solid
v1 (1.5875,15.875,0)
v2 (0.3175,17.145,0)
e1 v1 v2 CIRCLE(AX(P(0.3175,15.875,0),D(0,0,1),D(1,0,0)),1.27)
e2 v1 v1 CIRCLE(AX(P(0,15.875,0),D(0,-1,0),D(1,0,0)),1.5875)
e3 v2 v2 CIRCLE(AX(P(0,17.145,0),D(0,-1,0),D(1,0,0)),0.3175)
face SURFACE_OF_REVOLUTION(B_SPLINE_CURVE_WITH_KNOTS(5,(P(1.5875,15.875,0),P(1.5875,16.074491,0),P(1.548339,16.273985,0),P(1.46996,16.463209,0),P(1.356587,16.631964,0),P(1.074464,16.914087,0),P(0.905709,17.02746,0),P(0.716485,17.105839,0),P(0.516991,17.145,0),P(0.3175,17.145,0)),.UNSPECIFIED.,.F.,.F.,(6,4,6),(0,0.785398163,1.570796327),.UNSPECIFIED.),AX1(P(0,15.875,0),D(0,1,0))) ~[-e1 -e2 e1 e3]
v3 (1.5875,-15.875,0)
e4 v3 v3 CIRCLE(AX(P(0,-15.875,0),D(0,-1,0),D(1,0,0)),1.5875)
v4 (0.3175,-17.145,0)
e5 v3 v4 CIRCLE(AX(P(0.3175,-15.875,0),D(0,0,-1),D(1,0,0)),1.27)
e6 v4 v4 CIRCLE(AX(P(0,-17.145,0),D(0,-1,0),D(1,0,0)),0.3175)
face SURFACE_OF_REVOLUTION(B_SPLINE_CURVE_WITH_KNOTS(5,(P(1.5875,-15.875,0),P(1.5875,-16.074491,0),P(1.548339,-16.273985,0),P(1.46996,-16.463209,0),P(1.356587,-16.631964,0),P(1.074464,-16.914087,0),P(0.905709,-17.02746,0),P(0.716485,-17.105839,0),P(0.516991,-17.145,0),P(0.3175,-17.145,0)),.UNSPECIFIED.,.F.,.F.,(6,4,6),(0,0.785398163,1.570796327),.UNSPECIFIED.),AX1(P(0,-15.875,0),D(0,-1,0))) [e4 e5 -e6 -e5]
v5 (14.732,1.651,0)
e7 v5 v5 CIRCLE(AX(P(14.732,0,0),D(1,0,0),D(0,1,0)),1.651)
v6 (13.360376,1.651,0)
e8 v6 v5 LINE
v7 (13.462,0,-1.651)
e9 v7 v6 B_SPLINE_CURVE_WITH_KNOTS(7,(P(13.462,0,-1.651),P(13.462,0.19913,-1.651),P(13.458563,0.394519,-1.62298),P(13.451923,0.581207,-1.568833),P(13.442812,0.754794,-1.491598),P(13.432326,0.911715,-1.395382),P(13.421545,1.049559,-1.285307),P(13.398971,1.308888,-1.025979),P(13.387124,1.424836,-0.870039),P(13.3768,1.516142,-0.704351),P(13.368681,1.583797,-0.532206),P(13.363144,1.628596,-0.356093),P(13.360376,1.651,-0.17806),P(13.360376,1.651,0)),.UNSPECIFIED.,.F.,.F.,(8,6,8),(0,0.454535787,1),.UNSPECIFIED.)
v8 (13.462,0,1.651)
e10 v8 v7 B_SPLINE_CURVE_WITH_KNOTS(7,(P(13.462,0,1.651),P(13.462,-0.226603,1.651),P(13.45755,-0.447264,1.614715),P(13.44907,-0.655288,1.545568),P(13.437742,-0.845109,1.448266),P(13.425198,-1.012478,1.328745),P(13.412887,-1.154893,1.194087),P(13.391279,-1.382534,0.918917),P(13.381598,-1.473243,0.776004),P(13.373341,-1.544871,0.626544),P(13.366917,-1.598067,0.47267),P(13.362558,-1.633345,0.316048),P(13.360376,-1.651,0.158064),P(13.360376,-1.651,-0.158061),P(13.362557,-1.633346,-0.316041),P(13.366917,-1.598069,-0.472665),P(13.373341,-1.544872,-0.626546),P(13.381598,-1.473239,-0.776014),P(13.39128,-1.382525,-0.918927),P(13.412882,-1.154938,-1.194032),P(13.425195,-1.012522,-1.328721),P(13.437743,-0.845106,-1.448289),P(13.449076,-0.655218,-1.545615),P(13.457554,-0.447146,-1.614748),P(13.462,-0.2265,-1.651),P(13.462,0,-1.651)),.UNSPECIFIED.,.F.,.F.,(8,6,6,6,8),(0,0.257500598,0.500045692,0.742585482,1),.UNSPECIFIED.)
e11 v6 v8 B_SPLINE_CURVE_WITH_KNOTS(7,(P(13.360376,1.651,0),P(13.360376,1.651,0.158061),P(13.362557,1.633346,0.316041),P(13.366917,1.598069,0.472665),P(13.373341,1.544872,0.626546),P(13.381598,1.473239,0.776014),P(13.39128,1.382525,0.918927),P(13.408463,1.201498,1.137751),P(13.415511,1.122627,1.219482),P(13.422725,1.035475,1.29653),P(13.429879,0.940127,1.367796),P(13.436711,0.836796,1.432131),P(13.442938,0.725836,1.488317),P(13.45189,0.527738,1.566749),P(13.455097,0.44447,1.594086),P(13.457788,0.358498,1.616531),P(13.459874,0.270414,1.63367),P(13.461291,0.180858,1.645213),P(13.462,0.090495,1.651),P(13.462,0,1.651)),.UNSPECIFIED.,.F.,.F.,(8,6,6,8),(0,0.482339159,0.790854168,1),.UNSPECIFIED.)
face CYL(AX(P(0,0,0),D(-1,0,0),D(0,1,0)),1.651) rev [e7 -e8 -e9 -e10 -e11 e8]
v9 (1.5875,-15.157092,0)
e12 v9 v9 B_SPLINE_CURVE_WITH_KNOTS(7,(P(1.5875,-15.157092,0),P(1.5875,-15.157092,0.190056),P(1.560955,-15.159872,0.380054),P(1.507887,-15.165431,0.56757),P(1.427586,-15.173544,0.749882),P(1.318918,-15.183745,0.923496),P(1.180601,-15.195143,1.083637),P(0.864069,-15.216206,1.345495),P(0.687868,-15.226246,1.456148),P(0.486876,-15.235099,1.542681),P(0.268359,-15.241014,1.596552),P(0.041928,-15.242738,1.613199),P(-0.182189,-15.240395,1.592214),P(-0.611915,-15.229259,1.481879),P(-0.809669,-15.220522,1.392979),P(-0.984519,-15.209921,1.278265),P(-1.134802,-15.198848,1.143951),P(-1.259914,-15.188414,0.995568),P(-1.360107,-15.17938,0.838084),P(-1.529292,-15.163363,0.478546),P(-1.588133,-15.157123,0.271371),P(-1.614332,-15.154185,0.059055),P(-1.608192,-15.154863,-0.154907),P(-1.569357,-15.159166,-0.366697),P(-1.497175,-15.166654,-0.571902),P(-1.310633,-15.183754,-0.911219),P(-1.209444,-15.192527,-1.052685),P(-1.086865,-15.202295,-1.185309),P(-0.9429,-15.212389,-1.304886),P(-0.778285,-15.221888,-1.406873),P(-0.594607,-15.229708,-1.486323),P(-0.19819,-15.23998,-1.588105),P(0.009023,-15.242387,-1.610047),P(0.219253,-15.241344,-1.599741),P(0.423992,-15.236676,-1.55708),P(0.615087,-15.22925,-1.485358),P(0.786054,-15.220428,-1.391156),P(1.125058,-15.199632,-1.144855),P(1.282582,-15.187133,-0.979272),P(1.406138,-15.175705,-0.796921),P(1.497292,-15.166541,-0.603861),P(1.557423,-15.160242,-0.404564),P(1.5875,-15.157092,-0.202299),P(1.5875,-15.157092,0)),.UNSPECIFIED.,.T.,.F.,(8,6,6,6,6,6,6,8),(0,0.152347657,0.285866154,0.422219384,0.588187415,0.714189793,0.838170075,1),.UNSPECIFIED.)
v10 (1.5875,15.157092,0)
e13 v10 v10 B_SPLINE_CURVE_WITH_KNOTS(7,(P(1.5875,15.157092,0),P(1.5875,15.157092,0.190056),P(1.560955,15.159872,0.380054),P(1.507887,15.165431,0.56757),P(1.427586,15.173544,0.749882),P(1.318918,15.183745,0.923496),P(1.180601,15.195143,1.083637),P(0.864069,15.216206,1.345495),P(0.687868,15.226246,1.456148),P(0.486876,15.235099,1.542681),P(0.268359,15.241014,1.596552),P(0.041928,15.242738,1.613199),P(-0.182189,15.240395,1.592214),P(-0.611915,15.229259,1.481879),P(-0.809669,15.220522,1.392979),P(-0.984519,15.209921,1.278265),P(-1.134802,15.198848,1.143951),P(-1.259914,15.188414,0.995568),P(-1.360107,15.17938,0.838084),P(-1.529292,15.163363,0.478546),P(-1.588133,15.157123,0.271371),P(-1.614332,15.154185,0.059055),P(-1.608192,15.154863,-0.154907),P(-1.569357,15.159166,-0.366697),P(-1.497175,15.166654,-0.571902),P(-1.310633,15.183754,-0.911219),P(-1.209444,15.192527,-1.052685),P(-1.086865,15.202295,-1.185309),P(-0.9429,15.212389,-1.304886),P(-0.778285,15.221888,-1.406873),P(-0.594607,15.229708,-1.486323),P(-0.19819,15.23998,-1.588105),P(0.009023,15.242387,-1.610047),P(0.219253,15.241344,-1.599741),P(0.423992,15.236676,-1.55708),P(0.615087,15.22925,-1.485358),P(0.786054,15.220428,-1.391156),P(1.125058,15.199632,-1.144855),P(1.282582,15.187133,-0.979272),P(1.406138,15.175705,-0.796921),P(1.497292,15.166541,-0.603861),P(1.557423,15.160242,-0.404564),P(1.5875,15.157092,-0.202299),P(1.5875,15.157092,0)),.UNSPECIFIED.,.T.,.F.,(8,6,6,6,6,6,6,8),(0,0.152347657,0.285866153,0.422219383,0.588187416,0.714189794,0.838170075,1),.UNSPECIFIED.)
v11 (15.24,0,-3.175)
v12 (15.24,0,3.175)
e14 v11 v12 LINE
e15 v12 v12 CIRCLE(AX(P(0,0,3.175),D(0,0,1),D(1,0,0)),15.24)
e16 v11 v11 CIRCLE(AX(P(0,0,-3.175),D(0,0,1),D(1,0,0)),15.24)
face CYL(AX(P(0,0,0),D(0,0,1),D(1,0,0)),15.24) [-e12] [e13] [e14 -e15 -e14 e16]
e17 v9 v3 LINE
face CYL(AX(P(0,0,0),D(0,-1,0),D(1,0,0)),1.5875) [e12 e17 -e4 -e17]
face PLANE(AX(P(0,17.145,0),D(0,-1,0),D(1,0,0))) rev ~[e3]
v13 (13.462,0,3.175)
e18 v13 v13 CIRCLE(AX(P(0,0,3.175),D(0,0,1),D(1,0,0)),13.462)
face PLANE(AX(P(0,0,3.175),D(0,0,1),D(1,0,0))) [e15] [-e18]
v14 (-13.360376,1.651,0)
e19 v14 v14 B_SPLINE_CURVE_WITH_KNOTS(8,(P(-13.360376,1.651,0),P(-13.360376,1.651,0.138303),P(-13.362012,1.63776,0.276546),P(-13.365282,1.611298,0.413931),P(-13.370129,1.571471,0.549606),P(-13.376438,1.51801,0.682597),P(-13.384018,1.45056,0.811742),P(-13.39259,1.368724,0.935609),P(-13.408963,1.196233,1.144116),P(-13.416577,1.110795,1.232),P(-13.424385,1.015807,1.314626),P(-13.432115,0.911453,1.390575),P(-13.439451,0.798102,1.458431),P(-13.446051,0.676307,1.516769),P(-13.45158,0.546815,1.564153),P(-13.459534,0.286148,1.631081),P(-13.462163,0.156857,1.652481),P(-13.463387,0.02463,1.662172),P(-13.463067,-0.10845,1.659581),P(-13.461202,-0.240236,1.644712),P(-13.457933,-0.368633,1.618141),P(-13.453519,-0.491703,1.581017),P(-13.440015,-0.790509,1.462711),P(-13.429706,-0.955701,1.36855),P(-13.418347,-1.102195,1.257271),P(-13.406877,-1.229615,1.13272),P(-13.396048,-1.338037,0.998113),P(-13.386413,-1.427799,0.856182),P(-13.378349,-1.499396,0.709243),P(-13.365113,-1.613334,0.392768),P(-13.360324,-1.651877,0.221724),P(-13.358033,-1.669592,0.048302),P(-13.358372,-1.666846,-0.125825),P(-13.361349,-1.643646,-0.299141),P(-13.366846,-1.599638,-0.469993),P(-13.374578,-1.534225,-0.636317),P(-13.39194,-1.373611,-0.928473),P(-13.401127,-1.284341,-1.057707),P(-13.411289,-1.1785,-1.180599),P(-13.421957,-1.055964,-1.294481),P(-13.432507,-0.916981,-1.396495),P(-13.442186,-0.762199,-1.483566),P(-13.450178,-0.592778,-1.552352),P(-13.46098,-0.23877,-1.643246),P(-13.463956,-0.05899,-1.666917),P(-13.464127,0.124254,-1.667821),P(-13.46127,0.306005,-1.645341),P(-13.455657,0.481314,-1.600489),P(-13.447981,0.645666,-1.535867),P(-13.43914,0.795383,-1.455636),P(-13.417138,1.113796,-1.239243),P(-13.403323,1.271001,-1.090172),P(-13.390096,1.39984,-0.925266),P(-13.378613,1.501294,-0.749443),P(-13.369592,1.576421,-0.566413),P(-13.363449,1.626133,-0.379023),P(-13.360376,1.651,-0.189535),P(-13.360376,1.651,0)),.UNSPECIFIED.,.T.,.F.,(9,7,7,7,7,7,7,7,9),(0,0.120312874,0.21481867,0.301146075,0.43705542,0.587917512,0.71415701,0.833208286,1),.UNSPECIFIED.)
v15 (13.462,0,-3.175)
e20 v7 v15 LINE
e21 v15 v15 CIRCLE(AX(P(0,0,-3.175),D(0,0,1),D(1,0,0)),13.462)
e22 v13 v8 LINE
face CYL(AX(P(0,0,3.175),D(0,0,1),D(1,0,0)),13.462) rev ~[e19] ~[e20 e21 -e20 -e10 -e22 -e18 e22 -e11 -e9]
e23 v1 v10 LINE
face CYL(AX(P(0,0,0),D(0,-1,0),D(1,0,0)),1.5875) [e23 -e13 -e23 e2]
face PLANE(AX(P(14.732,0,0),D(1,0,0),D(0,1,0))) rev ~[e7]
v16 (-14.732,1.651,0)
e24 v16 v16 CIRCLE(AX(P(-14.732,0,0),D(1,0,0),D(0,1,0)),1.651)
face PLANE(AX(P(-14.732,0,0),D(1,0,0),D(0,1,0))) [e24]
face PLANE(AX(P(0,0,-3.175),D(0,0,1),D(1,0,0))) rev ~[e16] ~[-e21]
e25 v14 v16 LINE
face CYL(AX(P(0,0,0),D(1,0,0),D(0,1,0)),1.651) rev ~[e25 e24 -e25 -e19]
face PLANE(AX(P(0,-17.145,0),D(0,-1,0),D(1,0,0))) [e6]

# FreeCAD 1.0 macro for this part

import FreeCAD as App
import Part
import Sketcher

V = App.Vector
Q = App.Units.Quantity


def edges_at(feature, points):
    """Names of the edges that pass closest to the given points."""
    edges = feature.Shape.Edges
    near = lambda p: min(range(len(edges)), key=lambda i: edges[i].distToShape(Part.Vertex(*p))[0])
    return sorted({f"Edge{near(p) + 1}" for p in points})

doc = App.newDocument("Part")
params = doc.addObject("Spreadsheet::Sheet", "Params")
for row, (alias, value) in enumerate([
    ("sketch1_diameter", "1.2 in"),
    ("pad1_length", "0.25 in"),
    ("sketch2_diameter", "0.13 in"),
    ("pocket1_length", "0.58 in"),
    ("pocket1_length2", "0.58 in"),
    ("sketch3_diameter", "0.125 in"),
    ("pad2_length", "1.35 in"),
    ("sketch4_diameter", "1.06 in"),
    ("fillet_radius", "0.05 in"),
], start=1):
    params.set(f"A{row}", alias)
    params.set(f"B{row}", "=" + value)
    params.setAlias(f"B{row}", alias)

body = doc.addObject("PartDesign::Body", "Body")

sketch1 = body.newObject("Sketcher::SketchObject", "Sketch")
sketch1.AttachmentSupport = (doc.getObject("XY_Plane"), [""])
sketch1.MapMode = "FlatFace"
sketch1.addGeometry(Part.Circle(V(0, 0, 0), V(0, 0, 1), 15.24), False)
sketch1.addConstraint([
    Sketcher.Constraint("Coincident", 0, 3, -1, 1),
    Sketcher.Constraint("Diameter", 0, Q("1.2 in")),
])
sketch1.setExpression("Constraints[1]", "Params.sketch1_diameter")
pad1 = body.newObject("PartDesign::Pad", "Pad")
pad1.Profile = sketch1
pad1.setExpression("Length", "Params.pad1_length")
pad1.Midplane = True

sketch2 = body.newObject("Sketcher::SketchObject", "Sketch001")
sketch2.AttachmentSupport = (doc.getObject("YZ_Plane"), [""])
sketch2.MapMode = "FlatFace"
sketch2.addGeometry(Part.Circle(V(0, 0, 0), V(0, 0, 1), 1.651), False)
sketch2.addConstraint([
    Sketcher.Constraint("Coincident", 0, 3, -1, 1),
    Sketcher.Constraint("Diameter", 0, Q("0.13 in")),
])
sketch2.setExpression("Constraints[1]", "Params.sketch2_diameter")
pocket1 = body.newObject("PartDesign::Pocket", "Pocket")
pocket1.Profile = sketch2
pocket1.Type = "TwoLengths"
pocket1.setExpression("Length", "Params.pocket1_length")
pocket1.setExpression("Length2", "Params.pocket1_length2")

sketch3 = body.newObject("Sketcher::SketchObject", "Sketch002")
sketch3.AttachmentSupport = (doc.getObject("XZ_Plane"), [""])
sketch3.MapMode = "FlatFace"
sketch3.addGeometry(Part.Circle(V(0, 0, 0), V(0, 0, 1), 1.5875), False)
sketch3.addConstraint([
    Sketcher.Constraint("Coincident", 0, 3, -1, 1),
    Sketcher.Constraint("Diameter", 0, Q("0.125 in")),
])
sketch3.setExpression("Constraints[1]", "Params.sketch3_diameter")
pad2 = body.newObject("PartDesign::Pad", "Pad001")
pad2.Profile = sketch3
pad2.setExpression("Length", "Params.pad2_length")
pad2.Midplane = True

sketch4 = body.newObject("Sketcher::SketchObject", "Sketch003")
sketch4.AttachmentSupport = (doc.getObject("XY_Plane"), [""])
sketch4.MapMode = "FlatFace"
sketch4.AttachmentOffset = App.Placement(V(0, 0, 0.125 * 25.4), App.Rotation())
sketch4.addGeometry(Part.Circle(V(0, 0, 0), V(0, 0, 1), 13.462), False)
sketch4.addConstraint([
    Sketcher.Constraint("Coincident", 0, 3, -1, 1),
    Sketcher.Constraint("Diameter", 0, Q("1.06 in")),
])
sketch4.setExpression("Constraints[1]", "Params.sketch4_diameter")
pocket2 = body.newObject("PartDesign::Pocket", "Pocket001")
pocket2.Profile = sketch4
pocket2.Type = "ThroughAll"
doc.recompute()

fillet = body.newObject("PartDesign::Fillet", "Fillet")
fillet.Base = (pocket2, edges_at(pocket2, [(-1.587, -17.145, 0), (-1.587, 17.145, 0)]))
fillet.setExpression("Radius", "Params.fillet_radius")

doc.recompute()
